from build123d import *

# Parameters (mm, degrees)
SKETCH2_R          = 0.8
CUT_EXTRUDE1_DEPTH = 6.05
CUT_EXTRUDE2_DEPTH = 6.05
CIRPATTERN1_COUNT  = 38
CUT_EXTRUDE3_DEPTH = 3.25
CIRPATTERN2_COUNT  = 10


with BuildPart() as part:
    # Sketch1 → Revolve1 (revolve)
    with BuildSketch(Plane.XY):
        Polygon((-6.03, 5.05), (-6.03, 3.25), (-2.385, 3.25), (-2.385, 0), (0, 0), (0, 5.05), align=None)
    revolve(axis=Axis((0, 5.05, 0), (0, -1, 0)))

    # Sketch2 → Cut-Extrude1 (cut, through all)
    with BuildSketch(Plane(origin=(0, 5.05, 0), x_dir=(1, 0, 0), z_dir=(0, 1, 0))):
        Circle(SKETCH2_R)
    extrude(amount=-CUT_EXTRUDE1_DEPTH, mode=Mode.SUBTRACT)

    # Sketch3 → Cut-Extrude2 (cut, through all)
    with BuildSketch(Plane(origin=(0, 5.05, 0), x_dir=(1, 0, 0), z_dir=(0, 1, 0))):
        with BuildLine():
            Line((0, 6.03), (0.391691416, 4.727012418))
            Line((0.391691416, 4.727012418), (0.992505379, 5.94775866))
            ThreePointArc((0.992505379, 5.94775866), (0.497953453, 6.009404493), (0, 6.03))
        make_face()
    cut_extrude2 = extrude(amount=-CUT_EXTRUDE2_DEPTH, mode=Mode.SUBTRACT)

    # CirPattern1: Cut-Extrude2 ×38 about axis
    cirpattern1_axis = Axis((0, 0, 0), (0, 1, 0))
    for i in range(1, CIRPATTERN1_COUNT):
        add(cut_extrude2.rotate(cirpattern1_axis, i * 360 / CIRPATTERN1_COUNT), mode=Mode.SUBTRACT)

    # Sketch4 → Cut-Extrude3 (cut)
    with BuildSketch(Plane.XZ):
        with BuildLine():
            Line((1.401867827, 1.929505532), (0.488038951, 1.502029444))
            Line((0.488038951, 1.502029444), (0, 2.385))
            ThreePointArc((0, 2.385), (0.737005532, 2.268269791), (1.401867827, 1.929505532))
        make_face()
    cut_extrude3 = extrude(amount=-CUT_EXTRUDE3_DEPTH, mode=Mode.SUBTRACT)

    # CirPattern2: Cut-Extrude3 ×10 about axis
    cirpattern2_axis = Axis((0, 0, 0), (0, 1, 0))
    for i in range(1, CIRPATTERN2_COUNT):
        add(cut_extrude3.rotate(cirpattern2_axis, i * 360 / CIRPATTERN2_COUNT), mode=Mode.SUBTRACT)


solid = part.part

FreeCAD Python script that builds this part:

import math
import FreeCAD as App
import Part
import Sketcher

V = App.Vector
Q = App.Units.Quantity


def add_polygon(sketch, points):
    """Adds a closed chain of lines whose ends are joined by coincident constraints."""
    first, n = sketch.GeometryCount, len(points)
    for a, b in zip(points, points[1:] + points[:1]):
        sketch.addGeometry(Part.LineSegment(App.Vector(*a, 0), App.Vector(*b, 0)), False)
    for i in range(n):
        sketch.addConstraint(Sketcher.Constraint("Coincident", first + i, 2, first + (i + 1) % n, 1))

doc = App.newDocument("Part")
body = doc.addObject("PartDesign::Body", "Body")

# Sketch on XY plane
sketch1 = doc.addObject("Sketcher::SketchObject", "Sketch")
body.addObject(sketch1)
sketch1.AttachmentSupport = (doc.XY_Plane, [""])
sketch1.MapMode = "FlatFace"
add_polygon(sketch1, [(-6.03, 5.05), (-6.03, 3.25), (-2.385, 3.25), (-2.385, 0), (0, 0), (0, 5.05)])  # lines 0-5
sketch1.addConstraint(Sketcher.Constraint("Vertical", 0))
sketch1.addConstraint(Sketcher.Constraint("Horizontal", 1))
sketch1.addConstraint(Sketcher.Constraint("Vertical", 2))
sketch1.addConstraint(Sketcher.Constraint("Horizontal", 3))
sketch1.addConstraint(Sketcher.Constraint("Vertical", 4))
sketch1.addConstraint(Sketcher.Constraint("Horizontal", 5))
sketch1.addConstraint(Sketcher.Constraint("Coincident", 3, 2, -1, 1))
sketch1.addConstraint(Sketcher.Constraint("DistanceY", 0, 2, 0, 1, Q("1.8 mm")))
sketch1.addConstraint(Sketcher.Constraint("DistanceX", 5, 2, 5, 1, Q("6.03 mm")))
sketch1.addConstraint(Sketcher.Constraint("DistanceY", 2, 2, 2, 1, Q("3.25 mm")))
sketch1.addConstraint(Sketcher.Constraint("DistanceX", 1, 1, 1, 2, Q("3.645 mm")))
revolution = doc.addObject("PartDesign::Revolution", "Revolution")
body.addObject(revolution)
revolution.Profile = sketch1
revolution.ReferenceAxis = (sketch1, ["V_Axis"])
revolution.Angle = 360

# Sketch on XZ plane
sketch2 = doc.addObject("Sketcher::SketchObject", "Sketch001")
body.addObject(sketch2)
sketch2.AttachmentSupport = (doc.XZ_Plane, [""])
sketch2.MapMode = "FlatFace"
sketch2.AttachmentOffset = App.Placement(V(0, 0, -5.05), App.Rotation())
sketch2.addGeometry(Part.Circle(V(0, 0, 0), V(0, 0, 1), 0.8), False)
sketch2.addConstraint(Sketcher.Constraint("Coincident", 0, 3, -1, 1))
sketch2.addConstraint(Sketcher.Constraint("Diameter", 0, Q("1.6 mm")))
pocket1 = doc.addObject("PartDesign::Pocket", "Pocket")
body.addObject(pocket1)
pocket1.Profile = sketch2
pocket1.Type = "ThroughAll"
pocket1.Reversed = True

# Sketch on XZ plane
sketch3 = doc.addObject("Sketcher::SketchObject", "Sketch002")
body.addObject(sketch3)
sketch3.AttachmentSupport = (doc.XZ_Plane, [""])
sketch3.MapMode = "FlatFace"
sketch3.AttachmentOffset = App.Placement(V(0, 0, -5.05), App.Rotation())
sketch3.addGeometry(Part.LineSegment(V(0, -6.03, 0), V(0.391691, -4.727012, 0)), False)
sketch3.addGeometry(Part.LineSegment(V(0.391691, -4.727012, 0), V(0.992505, -5.947759, 0)), False)
sketch3.addGeometry(Part.ArcOfCircle(Part.Circle(V(0, 0, 0), V(0, 0, 1), 6.03), math.radians(-90), math.radians(-80.526316)), False)
sketch3.addConstraint(Sketcher.Constraint("Coincident", 0, 2, 1, 1))
sketch3.addConstraint(Sketcher.Constraint("Coincident", 1, 2, 2, 2))
sketch3.addConstraint(Sketcher.Constraint("Coincident", 2, 1, 0, 1))
sketch3.addConstraint(Sketcher.Constraint("Coincident", 2, 3, -1, 1))
sketch3.addConstraint(Sketcher.Constraint("PointOnObject", 2, 1, -2))
sketch3.addConstraint(Sketcher.Constraint("Equal", 0, 1))
sketch3.addConstraint(Sketcher.Constraint("Radius", 2, Q("6.03 mm")))
sketch3.addConstraint(Sketcher.Constraint("DistanceX", -1, 1, 0, 2, Q("0.391691 mm")))
sketch3.addConstraint(Sketcher.Constraint("DistanceY", 1, 2, -1, 1, Q("5.947759 mm")))
pocket2 = doc.addObject("PartDesign::Pocket", "Pocket001")
body.addObject(pocket2)
pocket2.Profile = sketch3
pocket2.Type = "ThroughAll"
pocket2.Reversed = True
doc.recompute()

polarpattern = doc.addObject("PartDesign::PolarPattern", "PolarPattern")
body.addObject(polarpattern)
polarpattern.Originals = [pocket2]
polarpattern.Axis = (doc.Y_Axis, [""])
polarpattern.Angle = 360
polarpattern.Occurrences = 38
body.Tip = polarpattern

# Sketch on XZ plane
sketch4 = doc.addObject("Sketcher::SketchObject", "Sketch003")
body.addObject(sketch4)
sketch4.AttachmentSupport = (doc.XZ_Plane, [""])
sketch4.MapMode = "FlatFace"
sketch4.addGeometry(Part.LineSegment(V(0.488039, 1.502029, 0), V(1.401868, 1.929506, 0)), False)
sketch4.addGeometry(Part.ArcOfCircle(Part.Circle(V(0, 0, 0), V(0, 0, 1), 2.385), math.radians(54), math.radians(90)), False)
sketch4.addGeometry(Part.LineSegment(V(0, 2.385, 0), V(0.488039, 1.502029, 0)), False)
sketch4.addConstraint(Sketcher.Constraint("Coincident", 0, 2, 1, 1))
sketch4.addConstraint(Sketcher.Constraint("Coincident", 1, 2, 2, 1))
sketch4.addConstraint(Sketcher.Constraint("Coincident", 2, 2, 0, 1))
sketch4.addConstraint(Sketcher.Constraint("Coincident", 1, 3, -1, 1))
sketch4.addConstraint(Sketcher.Constraint("PointOnObject", 1, 2, -2))
sketch4.addConstraint(Sketcher.Constraint("Equal", 0, 2))
sketch4.addConstraint(Sketcher.Constraint("Radius", 1, Q("2.385 mm")))
sketch4.addConstraint(Sketcher.Constraint("Distance", 0, Q("1.00887 mm")))
sketch4.addConstraint(Sketcher.Constraint("DistanceX", -1, 1, 2, 2, Q("0.488039 mm")))
pocket3 = doc.addObject("PartDesign::Pocket", "Pocket002")
body.addObject(pocket3)
pocket3.Profile = sketch4
pocket3.Length = 3.25
doc.recompute()

polarpattern2 = doc.addObject("PartDesign::PolarPattern", "PolarPattern001")
body.addObject(polarpattern2)
polarpattern2.Originals = [pocket3]
polarpattern2.Axis = (doc.Y_Axis, [""])
polarpattern2.Angle = 360
polarpattern2.Occurrences = 10
body.Tip = polarpattern2

doc.recompute()
